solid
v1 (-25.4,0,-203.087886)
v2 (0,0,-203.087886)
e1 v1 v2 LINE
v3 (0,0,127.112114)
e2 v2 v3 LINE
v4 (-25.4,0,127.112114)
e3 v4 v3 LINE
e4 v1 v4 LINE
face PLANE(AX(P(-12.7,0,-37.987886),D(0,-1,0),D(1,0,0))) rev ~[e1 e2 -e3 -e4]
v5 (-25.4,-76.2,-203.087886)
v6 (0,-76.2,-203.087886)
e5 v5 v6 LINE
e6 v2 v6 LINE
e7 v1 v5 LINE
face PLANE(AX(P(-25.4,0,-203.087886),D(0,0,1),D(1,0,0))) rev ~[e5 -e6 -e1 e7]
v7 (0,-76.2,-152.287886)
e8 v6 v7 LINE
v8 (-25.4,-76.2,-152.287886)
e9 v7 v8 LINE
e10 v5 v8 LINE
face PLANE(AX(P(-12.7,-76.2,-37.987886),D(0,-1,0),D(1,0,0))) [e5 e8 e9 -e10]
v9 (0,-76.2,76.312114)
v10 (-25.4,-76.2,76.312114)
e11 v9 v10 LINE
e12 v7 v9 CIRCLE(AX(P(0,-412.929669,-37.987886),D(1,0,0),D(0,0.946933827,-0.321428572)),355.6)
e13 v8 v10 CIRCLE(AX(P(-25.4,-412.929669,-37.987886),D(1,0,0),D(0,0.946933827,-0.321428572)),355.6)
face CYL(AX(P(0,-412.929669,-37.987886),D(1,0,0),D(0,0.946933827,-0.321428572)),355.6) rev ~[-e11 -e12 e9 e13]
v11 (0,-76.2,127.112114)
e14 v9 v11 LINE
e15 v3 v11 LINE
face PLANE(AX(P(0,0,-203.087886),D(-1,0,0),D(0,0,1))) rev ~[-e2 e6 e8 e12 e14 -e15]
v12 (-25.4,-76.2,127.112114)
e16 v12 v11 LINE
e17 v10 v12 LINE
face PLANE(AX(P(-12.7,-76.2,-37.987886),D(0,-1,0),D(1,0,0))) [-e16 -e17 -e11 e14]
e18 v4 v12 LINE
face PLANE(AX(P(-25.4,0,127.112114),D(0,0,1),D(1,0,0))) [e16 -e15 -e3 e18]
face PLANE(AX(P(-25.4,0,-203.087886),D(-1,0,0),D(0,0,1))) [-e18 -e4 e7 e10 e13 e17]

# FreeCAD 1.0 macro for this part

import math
import FreeCAD as App
import Part
import Sketcher

V = App.Vector
Q = App.Units.Quantity


def add_polygon(sketch, points):
    """Adds a closed chain of lines whose ends are joined by coincident constraints."""
    first, n = sketch.GeometryCount, len(points)
    for a, b in zip(points, points[1:] + points[:1]):
        sketch.addGeometry(Part.LineSegment(App.Vector(*a, 0), App.Vector(*b, 0)), False)
    for i in range(n):
        sketch.addConstraint(Sketcher.Constraint("Coincident", first + i, 2, first + (i + 1) % n, 1))

doc = App.newDocument("Part")
params = doc.addObject("Spreadsheet::Sheet", "Params")
for row, (alias, value) in enumerate([
    ("sketch1_width", "1 in"),
    ("sketch1_height", "13 in"),
    ("pad1_length", "3 in"),
    ("sketch2_radius", "14 in"),
    ("sketch2_height", "9 in"),
    ("pocket1_length", "25 in"),
], start=1):
    params.set(f"A{row}", alias)
    params.set(f"B{row}", "=" + value)
    params.setAlias(f"B{row}", alias)

body = doc.addObject("PartDesign::Body", "Body")

# Sketch on XZ plane
sketch1 = body.newObject("Sketcher::SketchObject", "Sketch")
sketch1.AttachmentSupport = (doc.getObject("XZ_Plane"), [""])
sketch1.MapMode = "FlatFace"
add_polygon(sketch1, [(-25, 127), (-25, -203), (0, -203), (0, 127)])  # lines 0-3
sketch1.addConstraint(Sketcher.Constraint("Vertical", 0))
sketch1.addConstraint(Sketcher.Constraint("Horizontal", 1))
sketch1.addConstraint(Sketcher.Constraint("Vertical", 2))
sketch1.addConstraint(Sketcher.Constraint("Horizontal", 3))
sketch1.addConstraint(Sketcher.Constraint("PointOnObject", 1, 2, -2))
sketch1.addConstraint(Sketcher.Constraint("DistanceX", 1, 1, 1, 2, Q("1 in")))
sketch1.addConstraint(Sketcher.Constraint("DistanceY", 0, 2, 0, 1, Q("13 in")))
sketch1.addConstraint(Sketcher.Constraint("DistanceY", 0, 2, -1, 1, 203.087886))
sketch1.setExpression("Constraints[9]", "Params.sketch1_width")
sketch1.setExpression("Constraints[10]", "Params.sketch1_height")
pad1 = body.newObject("PartDesign::Pad", "Pad")
pad1.Profile = sketch1
pad1.setExpression("Length", "Params.pad1_length")

# Sketch on YZ plane
sketch2 = body.newObject("Sketcher::SketchObject", "Sketch001")
sketch2.AttachmentSupport = (doc.getObject("YZ_Plane"), [""])
sketch2.MapMode = "FlatFace"
sketch2.addGeometry(Part.LineSegment(V(-76, 76, 0), V(-76, -152, 0)), False)
sketch2.addGeometry(Part.ArcOfCircle(Part.Circle(V(-413, -38, 0), V(0, 0, 1), 356), math.radians(-19), math.radians(19)), False)
sketch2.addConstraint(Sketcher.Constraint("Coincident", 0, 1, 1, 2))
sketch2.addConstraint(Sketcher.Constraint("Coincident", 1, 1, 0, 2))
sketch2.addConstraint(Sketcher.Constraint("Vertical", 0))
sketch2.addConstraint(Sketcher.Constraint("Radius", 1, Q("14 in")))
sketch2.addConstraint(Sketcher.Constraint("DistanceY", 0, 2, 0, 1, Q("9 in")))
sketch2.addConstraint(Sketcher.Constraint("DistanceX", 0, 1, -1, 1, Q("3 in")))
sketch2.addConstraint(Sketcher.Constraint("DistanceY", 1, 3, -1, 1, 37.987886))
sketch2.setExpression("Constraints[3]", "Params.sketch2_radius")
sketch2.setExpression("Constraints[4]", "Params.sketch2_height")
pocket1 = body.newObject("PartDesign::Pocket", "Pocket")
pocket1.Profile = sketch2
pocket1.setExpression("Length", "Params.pocket1_length")

doc.recompute()
